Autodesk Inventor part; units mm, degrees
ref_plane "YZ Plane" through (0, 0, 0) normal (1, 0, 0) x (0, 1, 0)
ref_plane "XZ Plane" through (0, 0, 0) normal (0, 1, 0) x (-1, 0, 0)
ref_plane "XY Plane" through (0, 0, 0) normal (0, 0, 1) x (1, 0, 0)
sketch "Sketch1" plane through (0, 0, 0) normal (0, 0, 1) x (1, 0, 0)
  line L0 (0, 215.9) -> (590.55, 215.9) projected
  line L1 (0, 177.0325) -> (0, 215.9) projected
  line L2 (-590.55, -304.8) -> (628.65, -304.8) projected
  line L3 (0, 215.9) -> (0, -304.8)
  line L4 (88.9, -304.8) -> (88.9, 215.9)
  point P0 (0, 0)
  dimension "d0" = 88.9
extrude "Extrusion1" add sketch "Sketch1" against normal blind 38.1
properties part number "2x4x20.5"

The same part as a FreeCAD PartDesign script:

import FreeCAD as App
import Part
import Sketcher

V = App.Vector
Q = App.Units.Quantity


def add_polygon(sketch, points):
    """Adds a closed chain of lines whose ends are joined by coincident constraints."""
    first, n = sketch.GeometryCount, len(points)
    for a, b in zip(points, points[1:] + points[:1]):
        sketch.addGeometry(Part.LineSegment(App.Vector(*a, 0), App.Vector(*b, 0)), False)
    for i in range(n):
        sketch.addConstraint(Sketcher.Constraint("Coincident", first + i, 2, first + (i + 1) % n, 1))

doc = App.newDocument("Part")
body = doc.addObject("PartDesign::Body", "Body")

# Sketch on XY plane
sketch1 = body.newObject("Sketcher::SketchObject", "Sketch")
sketch1.AttachmentSupport = (doc.getObject("XY_Plane"), [""])
sketch1.MapMode = "FlatFace"
add_polygon(sketch1, [(89, 216), (0, 216), (0, -305), (89, -305)])  # lines 0-3
sketch1.addConstraint([
    Sketcher.Constraint("Horizontal", 0),
    Sketcher.Constraint("Vertical", 1),
    Sketcher.Constraint("Horizontal", 2),
    Sketcher.Constraint("Vertical", 3),
    Sketcher.Constraint("PointOnObject", 0, 2, -2),
    Sketcher.Constraint("DistanceX", 0, 2, 0, 1, Q("3.5 in")),
    Sketcher.Constraint("DistanceY", 1, 2, 1, 1, Q("20.5 in")),
    Sketcher.Constraint("DistanceY", 1, 2, -1, 1, Q("12 in")),
])
pad1 = body.newObject("PartDesign::Pad", "Pad")
pad1.Profile = sketch1
pad1.Length = Q("1.5 in")
pad1.Reversed = True

doc.recompute()
